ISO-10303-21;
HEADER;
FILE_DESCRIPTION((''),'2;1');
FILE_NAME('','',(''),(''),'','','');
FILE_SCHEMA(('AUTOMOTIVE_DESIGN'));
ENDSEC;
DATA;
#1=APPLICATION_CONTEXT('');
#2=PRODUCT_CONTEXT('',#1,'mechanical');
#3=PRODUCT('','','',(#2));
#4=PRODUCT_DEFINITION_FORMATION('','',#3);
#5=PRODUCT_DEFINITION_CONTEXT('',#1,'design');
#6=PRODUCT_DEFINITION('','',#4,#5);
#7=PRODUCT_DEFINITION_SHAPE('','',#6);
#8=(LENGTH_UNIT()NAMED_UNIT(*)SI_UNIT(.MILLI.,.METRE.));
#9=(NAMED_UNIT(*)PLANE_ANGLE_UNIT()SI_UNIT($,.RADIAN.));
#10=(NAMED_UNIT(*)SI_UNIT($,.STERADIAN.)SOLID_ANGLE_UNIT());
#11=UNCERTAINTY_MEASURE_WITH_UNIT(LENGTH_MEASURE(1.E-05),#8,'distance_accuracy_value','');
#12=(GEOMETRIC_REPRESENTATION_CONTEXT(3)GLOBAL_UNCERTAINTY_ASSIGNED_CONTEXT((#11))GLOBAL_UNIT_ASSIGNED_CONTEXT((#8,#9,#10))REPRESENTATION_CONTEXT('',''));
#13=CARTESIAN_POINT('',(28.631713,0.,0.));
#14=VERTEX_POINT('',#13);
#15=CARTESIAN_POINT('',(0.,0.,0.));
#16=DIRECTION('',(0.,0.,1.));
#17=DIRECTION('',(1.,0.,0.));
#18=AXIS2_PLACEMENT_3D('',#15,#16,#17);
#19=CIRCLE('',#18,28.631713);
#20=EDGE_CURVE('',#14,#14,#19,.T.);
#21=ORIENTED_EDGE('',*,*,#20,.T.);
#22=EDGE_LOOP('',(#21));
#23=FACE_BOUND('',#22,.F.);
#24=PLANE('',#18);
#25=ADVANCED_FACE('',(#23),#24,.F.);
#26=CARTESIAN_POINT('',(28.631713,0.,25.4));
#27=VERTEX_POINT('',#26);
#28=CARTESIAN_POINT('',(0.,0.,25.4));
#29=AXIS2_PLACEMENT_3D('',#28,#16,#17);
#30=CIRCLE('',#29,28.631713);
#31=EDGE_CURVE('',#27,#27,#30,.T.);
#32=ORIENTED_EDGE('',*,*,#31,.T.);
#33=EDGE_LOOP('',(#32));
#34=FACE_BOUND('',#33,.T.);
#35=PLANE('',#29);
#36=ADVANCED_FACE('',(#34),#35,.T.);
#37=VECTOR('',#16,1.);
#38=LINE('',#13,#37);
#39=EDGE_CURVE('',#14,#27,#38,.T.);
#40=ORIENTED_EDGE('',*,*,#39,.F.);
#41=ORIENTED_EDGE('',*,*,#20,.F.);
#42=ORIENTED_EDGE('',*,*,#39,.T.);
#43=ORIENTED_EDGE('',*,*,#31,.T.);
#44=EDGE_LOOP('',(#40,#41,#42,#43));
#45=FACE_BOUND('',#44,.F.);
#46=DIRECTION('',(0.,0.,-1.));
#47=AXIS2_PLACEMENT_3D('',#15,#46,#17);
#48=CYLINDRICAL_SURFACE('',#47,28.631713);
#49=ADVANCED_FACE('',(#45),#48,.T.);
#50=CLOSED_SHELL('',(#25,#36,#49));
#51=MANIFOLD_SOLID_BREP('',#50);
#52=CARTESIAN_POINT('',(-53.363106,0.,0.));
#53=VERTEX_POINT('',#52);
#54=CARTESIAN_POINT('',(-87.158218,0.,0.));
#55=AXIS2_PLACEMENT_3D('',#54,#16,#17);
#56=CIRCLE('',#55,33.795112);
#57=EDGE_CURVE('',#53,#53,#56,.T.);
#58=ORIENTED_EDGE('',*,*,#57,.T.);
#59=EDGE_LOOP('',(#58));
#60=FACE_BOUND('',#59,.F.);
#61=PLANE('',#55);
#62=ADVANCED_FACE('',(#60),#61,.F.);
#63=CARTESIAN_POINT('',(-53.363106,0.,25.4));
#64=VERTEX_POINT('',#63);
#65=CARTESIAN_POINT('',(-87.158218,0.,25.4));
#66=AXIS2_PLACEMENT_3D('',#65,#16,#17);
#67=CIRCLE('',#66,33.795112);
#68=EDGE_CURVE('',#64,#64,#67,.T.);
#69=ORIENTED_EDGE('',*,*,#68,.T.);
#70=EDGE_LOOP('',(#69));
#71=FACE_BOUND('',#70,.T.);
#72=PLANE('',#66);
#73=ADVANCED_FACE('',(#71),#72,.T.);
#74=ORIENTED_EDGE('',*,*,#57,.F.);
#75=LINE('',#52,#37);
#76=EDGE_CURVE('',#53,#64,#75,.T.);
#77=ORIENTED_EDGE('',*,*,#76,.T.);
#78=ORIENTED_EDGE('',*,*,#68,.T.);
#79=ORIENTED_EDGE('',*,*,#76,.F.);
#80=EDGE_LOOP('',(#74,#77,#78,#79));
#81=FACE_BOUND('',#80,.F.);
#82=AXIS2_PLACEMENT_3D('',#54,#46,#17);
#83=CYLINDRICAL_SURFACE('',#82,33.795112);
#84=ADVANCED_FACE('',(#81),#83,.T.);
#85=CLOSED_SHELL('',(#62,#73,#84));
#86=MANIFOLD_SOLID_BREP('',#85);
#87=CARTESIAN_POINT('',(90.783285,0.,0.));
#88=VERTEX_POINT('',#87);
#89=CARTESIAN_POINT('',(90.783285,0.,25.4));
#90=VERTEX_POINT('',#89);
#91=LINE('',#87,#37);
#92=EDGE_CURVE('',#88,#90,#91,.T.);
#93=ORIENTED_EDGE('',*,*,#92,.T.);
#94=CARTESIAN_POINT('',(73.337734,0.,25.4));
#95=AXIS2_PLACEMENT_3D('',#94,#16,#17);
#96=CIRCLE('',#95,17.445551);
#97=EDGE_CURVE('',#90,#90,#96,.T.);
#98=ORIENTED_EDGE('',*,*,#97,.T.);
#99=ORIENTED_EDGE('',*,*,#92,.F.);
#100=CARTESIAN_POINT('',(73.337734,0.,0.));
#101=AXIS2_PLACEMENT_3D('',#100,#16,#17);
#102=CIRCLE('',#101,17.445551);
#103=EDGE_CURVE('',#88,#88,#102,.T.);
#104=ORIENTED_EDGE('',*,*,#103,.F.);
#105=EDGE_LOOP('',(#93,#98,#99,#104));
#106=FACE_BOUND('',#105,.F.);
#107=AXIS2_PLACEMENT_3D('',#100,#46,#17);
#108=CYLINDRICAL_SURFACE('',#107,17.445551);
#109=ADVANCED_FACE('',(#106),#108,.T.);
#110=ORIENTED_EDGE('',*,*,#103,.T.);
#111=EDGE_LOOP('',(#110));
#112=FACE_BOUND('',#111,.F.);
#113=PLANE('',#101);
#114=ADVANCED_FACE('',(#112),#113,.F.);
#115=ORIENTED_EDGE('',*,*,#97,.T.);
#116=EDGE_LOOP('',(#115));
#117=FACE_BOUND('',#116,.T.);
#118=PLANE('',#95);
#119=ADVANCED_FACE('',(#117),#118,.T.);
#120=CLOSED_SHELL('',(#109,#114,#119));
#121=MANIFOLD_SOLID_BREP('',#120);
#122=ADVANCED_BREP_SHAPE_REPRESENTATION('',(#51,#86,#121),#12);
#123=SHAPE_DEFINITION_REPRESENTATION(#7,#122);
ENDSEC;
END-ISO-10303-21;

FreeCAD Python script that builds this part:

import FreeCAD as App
import Part
import Sketcher
Q = App.Units.Quantity

doc = App.newDocument("Part")
params = doc.addObject("Spreadsheet::Sheet", "Params")
for row, (alias, value) in enumerate([
    ("pad1_length", "1 in"),
], start=1):
    params.set(f"A{row}", alias)
    params.set(f"B{row}", "=" + value)
    params.setAlias(f"B{row}", alias)

body = doc.addObject("PartDesign::Body", "Body")
body.AllowCompound = True

sketch1 = doc.addObject("Sketcher::SketchObject", "Sketch")
body.addObject(sketch1)
sketch1.AttachmentSupport = (doc.XY_Plane, [""])
sketch1.MapMode = "FlatFace"
sketch1.addGeometry([
    Part.Circle(App.Vector(-87, 0, 0), App.Vector(0, 0, 1), 34),
    Part.Circle(App.Vector(0, 0, 0), App.Vector(0, 0, 1), 29),
    Part.Circle(App.Vector(73, 0, 0), App.Vector(0, 0, 1), 17),
], False)
sketch1.addConstraint([
    Sketcher.Constraint("Coincident", 1, 3, -1, 1),
    Sketcher.Constraint("PointOnObject", 0, 3, -1),
    Sketcher.Constraint("PointOnObject", 2, 3, -1),
    Sketcher.Constraint("Diameter", 2, Q("34.891102 mm")),
    Sketcher.Constraint("Diameter", 0, Q("67.590224 mm")),
    Sketcher.Constraint("Diameter", 1, Q("57.263426 mm")),
    Sketcher.Constraint("DistanceX", 0, 3, -1, 1, Q("87.158218 mm")),
    Sketcher.Constraint("DistanceX", 0, 3, 2, 3, Q("160.495952 mm")),
])
pad1 = doc.addObject("PartDesign::Pad", "Pad")
body.addObject(pad1)
pad1.Profile = sketch1
pad1.setExpression("Length", "Params.pad1_length")

doc.recompute()
